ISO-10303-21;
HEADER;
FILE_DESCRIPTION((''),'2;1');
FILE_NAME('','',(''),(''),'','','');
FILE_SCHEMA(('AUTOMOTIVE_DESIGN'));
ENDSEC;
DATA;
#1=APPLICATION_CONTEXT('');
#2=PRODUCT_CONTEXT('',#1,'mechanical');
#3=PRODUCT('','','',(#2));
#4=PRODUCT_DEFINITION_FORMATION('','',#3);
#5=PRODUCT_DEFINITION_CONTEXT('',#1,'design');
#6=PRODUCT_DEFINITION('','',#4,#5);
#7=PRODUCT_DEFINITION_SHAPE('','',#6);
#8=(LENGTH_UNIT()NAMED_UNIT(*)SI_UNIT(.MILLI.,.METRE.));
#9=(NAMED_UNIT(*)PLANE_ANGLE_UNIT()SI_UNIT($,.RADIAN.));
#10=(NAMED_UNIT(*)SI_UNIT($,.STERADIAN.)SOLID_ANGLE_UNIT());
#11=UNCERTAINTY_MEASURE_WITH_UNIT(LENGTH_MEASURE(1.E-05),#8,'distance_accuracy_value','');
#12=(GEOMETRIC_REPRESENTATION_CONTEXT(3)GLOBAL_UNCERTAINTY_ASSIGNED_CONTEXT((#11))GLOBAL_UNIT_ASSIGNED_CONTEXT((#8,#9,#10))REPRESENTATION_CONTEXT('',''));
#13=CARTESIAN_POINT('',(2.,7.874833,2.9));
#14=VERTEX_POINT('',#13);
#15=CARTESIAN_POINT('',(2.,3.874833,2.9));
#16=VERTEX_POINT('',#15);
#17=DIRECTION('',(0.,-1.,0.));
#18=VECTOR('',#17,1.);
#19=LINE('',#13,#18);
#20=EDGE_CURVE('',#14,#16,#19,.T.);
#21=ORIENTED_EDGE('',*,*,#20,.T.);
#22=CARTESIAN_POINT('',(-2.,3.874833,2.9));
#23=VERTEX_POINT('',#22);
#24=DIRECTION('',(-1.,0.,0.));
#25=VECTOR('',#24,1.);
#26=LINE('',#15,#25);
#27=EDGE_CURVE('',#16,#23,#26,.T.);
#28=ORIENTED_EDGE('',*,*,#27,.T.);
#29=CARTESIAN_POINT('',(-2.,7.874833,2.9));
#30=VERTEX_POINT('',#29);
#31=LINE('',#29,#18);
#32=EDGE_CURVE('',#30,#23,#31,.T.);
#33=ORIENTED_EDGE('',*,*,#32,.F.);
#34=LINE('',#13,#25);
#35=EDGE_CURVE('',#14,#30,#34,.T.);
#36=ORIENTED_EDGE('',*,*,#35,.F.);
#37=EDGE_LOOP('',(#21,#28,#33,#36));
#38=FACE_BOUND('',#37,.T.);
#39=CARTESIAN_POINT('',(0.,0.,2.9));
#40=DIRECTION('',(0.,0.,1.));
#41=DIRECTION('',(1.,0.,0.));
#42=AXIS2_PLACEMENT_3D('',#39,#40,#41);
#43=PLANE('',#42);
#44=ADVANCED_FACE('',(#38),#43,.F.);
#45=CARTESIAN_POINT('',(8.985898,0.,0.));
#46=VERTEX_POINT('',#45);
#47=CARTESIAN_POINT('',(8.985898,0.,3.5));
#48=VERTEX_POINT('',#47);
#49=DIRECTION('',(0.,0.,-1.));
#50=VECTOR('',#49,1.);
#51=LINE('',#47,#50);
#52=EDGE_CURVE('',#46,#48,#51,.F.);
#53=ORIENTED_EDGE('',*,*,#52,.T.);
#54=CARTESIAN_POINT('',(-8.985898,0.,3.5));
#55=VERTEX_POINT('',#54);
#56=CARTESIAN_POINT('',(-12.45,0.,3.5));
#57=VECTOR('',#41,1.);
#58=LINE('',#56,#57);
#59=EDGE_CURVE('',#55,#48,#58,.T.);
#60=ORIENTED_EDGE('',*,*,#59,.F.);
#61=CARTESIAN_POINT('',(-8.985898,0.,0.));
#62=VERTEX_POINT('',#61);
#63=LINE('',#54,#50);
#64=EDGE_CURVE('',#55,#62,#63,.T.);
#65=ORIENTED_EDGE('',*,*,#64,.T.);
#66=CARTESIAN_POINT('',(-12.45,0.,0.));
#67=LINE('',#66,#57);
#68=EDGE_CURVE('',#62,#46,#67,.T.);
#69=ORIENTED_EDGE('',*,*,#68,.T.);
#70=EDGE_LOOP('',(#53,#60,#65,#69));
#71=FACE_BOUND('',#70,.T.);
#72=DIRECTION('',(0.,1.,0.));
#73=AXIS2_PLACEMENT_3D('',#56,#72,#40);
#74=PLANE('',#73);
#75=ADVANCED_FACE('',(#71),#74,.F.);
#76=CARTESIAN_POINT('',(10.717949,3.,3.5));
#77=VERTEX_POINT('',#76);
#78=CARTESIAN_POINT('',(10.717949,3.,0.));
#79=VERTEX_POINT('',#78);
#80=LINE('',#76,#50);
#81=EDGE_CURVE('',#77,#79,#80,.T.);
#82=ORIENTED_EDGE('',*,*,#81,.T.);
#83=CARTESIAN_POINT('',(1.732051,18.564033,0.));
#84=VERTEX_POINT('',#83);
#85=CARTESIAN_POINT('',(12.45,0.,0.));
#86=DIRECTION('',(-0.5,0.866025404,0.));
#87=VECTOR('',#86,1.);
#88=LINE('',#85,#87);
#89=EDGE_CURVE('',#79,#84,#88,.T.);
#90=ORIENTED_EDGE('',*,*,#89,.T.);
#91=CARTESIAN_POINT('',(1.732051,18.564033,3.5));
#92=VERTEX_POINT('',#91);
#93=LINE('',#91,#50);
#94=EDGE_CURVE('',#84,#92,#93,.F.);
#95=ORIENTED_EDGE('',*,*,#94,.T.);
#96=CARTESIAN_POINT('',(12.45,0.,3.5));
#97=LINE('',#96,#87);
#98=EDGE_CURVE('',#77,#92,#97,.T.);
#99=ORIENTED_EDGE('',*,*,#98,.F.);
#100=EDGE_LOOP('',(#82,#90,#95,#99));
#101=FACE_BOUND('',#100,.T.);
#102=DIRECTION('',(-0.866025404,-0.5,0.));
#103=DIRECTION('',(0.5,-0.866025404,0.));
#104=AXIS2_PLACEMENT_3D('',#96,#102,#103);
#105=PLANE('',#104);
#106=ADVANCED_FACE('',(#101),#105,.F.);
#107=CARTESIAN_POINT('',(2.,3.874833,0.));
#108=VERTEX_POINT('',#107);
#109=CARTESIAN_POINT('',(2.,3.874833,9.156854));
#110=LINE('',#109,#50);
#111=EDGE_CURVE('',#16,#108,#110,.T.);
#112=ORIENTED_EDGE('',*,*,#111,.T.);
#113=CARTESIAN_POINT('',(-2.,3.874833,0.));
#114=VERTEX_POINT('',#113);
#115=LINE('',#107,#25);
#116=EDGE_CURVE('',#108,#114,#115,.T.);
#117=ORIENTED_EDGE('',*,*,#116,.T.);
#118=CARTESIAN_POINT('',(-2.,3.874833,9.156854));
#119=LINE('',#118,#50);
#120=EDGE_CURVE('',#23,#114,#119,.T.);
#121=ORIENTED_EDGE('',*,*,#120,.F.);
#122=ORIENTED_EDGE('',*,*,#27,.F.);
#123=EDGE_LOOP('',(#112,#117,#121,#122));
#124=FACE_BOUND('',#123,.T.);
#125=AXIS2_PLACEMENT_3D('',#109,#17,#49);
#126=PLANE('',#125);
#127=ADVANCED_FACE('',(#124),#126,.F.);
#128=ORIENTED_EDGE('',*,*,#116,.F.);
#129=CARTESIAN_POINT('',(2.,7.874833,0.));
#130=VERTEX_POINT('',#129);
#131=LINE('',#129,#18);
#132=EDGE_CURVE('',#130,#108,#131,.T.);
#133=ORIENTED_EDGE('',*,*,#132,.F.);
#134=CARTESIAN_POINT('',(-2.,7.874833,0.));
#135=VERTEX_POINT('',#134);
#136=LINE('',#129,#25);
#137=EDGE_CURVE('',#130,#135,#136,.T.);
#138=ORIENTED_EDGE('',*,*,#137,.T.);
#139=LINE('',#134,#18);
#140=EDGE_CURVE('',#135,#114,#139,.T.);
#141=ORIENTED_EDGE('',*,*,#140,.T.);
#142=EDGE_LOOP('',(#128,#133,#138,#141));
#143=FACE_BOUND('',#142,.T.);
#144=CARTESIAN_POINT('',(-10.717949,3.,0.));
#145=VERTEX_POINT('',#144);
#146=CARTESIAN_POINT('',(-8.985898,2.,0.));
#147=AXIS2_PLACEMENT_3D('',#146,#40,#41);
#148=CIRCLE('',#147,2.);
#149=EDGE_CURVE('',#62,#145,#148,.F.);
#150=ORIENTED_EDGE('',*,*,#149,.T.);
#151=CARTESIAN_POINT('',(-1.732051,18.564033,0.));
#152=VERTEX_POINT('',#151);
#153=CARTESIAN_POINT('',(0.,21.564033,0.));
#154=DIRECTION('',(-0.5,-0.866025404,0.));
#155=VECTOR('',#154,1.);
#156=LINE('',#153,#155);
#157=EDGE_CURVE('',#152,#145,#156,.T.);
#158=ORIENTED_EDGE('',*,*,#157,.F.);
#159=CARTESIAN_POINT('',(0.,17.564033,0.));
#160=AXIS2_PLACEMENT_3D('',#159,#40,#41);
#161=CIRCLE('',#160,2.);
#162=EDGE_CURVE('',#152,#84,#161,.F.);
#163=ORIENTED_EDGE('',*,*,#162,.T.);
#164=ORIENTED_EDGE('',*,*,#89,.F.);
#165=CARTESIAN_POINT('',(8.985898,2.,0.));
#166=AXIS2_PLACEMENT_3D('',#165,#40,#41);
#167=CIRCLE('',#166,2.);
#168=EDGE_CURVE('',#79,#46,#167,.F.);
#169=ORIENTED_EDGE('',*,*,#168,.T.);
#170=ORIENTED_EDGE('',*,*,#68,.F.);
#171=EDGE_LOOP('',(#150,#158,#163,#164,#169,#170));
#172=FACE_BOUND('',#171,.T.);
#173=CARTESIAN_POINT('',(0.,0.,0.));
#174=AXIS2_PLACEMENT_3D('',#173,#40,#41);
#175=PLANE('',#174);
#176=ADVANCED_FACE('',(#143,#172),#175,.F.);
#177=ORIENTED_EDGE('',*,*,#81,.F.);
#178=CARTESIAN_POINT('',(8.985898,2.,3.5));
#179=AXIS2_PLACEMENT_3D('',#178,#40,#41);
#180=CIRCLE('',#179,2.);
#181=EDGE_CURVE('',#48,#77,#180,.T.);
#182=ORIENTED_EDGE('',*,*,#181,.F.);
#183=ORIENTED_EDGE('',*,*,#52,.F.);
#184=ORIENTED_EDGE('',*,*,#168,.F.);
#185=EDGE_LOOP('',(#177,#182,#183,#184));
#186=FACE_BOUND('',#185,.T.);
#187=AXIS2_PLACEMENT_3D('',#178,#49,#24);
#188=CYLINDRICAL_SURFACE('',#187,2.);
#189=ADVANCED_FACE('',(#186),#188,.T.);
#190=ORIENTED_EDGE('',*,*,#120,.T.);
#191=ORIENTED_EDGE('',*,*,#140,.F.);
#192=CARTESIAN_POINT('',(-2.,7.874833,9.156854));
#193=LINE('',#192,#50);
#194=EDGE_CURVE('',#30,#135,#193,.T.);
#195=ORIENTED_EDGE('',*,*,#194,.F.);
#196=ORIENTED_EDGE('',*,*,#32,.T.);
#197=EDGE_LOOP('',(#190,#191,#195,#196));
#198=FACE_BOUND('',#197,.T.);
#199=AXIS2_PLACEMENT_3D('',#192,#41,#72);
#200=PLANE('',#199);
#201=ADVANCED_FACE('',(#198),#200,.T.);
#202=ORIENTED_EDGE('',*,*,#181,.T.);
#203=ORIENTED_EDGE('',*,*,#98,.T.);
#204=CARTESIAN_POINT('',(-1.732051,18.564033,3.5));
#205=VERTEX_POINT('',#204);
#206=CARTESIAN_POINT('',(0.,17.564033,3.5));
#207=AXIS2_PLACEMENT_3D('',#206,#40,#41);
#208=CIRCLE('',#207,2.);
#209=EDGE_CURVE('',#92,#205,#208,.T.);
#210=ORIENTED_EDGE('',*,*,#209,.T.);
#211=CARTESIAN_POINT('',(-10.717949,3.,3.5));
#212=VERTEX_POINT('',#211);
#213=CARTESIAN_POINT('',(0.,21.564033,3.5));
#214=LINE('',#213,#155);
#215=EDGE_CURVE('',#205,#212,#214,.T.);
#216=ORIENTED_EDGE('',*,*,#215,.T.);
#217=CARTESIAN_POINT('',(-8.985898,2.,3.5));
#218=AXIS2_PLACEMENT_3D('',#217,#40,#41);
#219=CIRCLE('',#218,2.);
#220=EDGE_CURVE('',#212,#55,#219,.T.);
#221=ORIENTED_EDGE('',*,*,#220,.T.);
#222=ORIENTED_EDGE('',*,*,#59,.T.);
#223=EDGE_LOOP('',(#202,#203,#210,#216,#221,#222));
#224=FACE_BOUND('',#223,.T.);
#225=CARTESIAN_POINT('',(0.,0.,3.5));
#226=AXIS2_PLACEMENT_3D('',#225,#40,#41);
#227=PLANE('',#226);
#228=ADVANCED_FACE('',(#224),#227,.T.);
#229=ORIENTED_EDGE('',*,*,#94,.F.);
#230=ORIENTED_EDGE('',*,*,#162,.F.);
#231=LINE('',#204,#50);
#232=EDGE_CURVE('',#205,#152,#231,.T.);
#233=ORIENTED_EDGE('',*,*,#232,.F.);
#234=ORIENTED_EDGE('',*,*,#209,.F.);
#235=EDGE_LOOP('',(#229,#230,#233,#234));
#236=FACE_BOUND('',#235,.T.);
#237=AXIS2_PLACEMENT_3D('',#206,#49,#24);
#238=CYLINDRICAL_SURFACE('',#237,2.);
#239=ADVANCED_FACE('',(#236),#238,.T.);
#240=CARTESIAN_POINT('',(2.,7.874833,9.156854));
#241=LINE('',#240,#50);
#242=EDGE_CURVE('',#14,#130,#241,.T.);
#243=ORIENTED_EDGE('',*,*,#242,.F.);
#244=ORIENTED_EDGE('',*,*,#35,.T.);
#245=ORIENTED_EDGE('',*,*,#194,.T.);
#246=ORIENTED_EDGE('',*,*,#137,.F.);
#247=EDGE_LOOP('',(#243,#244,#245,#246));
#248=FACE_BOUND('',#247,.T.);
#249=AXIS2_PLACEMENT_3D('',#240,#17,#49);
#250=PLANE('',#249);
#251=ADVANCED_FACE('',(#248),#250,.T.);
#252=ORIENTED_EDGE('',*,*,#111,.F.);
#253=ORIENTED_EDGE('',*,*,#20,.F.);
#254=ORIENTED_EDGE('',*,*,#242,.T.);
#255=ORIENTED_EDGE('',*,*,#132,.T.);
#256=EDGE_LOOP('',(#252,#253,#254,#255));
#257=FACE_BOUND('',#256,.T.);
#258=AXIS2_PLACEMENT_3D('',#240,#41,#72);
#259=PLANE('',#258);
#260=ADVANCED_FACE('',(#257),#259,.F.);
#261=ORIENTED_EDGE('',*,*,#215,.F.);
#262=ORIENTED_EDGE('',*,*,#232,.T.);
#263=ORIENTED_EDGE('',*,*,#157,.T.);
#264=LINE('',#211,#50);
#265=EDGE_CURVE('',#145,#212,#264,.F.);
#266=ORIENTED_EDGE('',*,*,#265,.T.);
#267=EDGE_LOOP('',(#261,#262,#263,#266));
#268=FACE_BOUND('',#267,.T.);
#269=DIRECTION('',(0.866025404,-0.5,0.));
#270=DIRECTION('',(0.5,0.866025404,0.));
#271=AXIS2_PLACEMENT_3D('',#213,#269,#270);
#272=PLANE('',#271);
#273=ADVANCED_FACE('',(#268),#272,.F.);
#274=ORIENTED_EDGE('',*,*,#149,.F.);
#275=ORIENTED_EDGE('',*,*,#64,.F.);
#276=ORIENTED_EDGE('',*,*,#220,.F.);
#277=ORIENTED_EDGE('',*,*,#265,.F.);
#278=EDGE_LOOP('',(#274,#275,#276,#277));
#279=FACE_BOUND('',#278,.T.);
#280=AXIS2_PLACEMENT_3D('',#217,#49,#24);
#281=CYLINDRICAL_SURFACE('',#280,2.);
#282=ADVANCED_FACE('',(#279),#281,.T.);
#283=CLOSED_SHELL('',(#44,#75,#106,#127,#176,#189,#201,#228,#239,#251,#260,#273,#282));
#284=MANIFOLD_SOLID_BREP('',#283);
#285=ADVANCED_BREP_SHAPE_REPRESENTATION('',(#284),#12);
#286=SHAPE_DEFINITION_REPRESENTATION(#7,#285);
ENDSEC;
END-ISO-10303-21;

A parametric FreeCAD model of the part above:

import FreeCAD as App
import Part
import Sketcher
Q = App.Units.Quantity


def edges_at(feature, points):
    """Names of the edges that pass closest to the given points."""
    edges = feature.Shape.Edges
    near = lambda p: min(range(len(edges)), key=lambda i: edges[i].distToShape(Part.Vertex(*p))[0])
    return sorted({f"Edge{near(p) + 1}" for p in points})

doc = App.newDocument("Part")
body = doc.addObject("PartDesign::Body", "Body")

sketch1 = doc.addObject("Sketcher::SketchObject", "Sketch")
body.addObject(sketch1)
sketch1.AttachmentSupport = (doc.XY_Plane, [""])
sketch1.MapMode = "FlatFace"
sketch1.addGeometry([
    Part.LineSegment(App.Vector(-12, 0, 0), App.Vector(12, 0, 0)),
    Part.LineSegment(App.Vector(12, 0, 0), App.Vector(0, 22, 0)),
    Part.LineSegment(App.Vector(0, 22, 0), App.Vector(-12, 0, 0)),
], False)
sketch1.addConstraint([
    Sketcher.Constraint("Coincident", 0, 2, 1, 1),
    Sketcher.Constraint("Coincident", 1, 2, 2, 1),
    Sketcher.Constraint("Coincident", 2, 2, 0, 1),
    Sketcher.Constraint("Horizontal", 0),
    Sketcher.Constraint("Symmetric", 0, 2, 2, 2, -1, 1),
    Sketcher.Constraint("PointOnObject", 1, 2, -2),
    Sketcher.Constraint("Angle", 1, Q("120 deg")),
    Sketcher.Constraint("DistanceX", 0, 1, 0, 2, 24.9),
])
pad1 = doc.addObject("PartDesign::Pad", "Pad")
body.addObject(pad1)
pad1.Profile = sketch1
pad1.Length = 3.5

sketch2 = doc.addObject("Sketcher::SketchObject", "Sketch001")
body.addObject(sketch2)
sketch2.AttachmentSupport = (doc.XY_Plane, [""])
sketch2.MapMode = "FlatFace"
sketch2.addGeometry([
    Part.LineSegment(App.Vector(2, 7.9, 0), App.Vector(2, 3.9, 0)),
    Part.LineSegment(App.Vector(2, 3.9, 0), App.Vector(-2, 3.9, 0)),
    Part.LineSegment(App.Vector(-2, 3.9, 0), App.Vector(-2, 7.9, 0)),
    Part.LineSegment(App.Vector(-2, 7.9, 0), App.Vector(2, 7.9, 0)),
], False)
sketch2.addConstraint([
    Sketcher.Constraint("Coincident", 0, 2, 1, 1),
    Sketcher.Constraint("Coincident", 1, 2, 2, 1),
    Sketcher.Constraint("Coincident", 2, 2, 3, 1),
    Sketcher.Constraint("Coincident", 3, 2, 0, 1),
    Sketcher.Constraint("Vertical", 0),
    Sketcher.Constraint("Horizontal", 1),
    Sketcher.Constraint("Vertical", 2),
    Sketcher.Constraint("Horizontal", 3),
    Sketcher.Constraint("Equal", 3, 0),
    Sketcher.Constraint("DistanceX", 1, 2, 1, 1, 4.0),
    Sketcher.Constraint("DistanceX", -1, 1, 0, 2, 2.0),
    Sketcher.Constraint("DistanceY", -1, 1, 0, 2, 3.874833),
])
pocket1 = doc.addObject("PartDesign::Pocket", "Pocket")
body.addObject(pocket1)
pocket1.Profile = sketch2
pocket1.Length = 2.9
pocket1.Reversed = True
doc.recompute()

fillet = doc.addObject("PartDesign::Fillet", "Fillet")
body.addObject(fillet)
fillet.Base = (pocket1, edges_at(pocket1, [(0, 21.564, 1.75), (12.45, 0, 1.75), (-12.45, 0, 1.75)]))
fillet.Radius = 2

doc.recompute()
